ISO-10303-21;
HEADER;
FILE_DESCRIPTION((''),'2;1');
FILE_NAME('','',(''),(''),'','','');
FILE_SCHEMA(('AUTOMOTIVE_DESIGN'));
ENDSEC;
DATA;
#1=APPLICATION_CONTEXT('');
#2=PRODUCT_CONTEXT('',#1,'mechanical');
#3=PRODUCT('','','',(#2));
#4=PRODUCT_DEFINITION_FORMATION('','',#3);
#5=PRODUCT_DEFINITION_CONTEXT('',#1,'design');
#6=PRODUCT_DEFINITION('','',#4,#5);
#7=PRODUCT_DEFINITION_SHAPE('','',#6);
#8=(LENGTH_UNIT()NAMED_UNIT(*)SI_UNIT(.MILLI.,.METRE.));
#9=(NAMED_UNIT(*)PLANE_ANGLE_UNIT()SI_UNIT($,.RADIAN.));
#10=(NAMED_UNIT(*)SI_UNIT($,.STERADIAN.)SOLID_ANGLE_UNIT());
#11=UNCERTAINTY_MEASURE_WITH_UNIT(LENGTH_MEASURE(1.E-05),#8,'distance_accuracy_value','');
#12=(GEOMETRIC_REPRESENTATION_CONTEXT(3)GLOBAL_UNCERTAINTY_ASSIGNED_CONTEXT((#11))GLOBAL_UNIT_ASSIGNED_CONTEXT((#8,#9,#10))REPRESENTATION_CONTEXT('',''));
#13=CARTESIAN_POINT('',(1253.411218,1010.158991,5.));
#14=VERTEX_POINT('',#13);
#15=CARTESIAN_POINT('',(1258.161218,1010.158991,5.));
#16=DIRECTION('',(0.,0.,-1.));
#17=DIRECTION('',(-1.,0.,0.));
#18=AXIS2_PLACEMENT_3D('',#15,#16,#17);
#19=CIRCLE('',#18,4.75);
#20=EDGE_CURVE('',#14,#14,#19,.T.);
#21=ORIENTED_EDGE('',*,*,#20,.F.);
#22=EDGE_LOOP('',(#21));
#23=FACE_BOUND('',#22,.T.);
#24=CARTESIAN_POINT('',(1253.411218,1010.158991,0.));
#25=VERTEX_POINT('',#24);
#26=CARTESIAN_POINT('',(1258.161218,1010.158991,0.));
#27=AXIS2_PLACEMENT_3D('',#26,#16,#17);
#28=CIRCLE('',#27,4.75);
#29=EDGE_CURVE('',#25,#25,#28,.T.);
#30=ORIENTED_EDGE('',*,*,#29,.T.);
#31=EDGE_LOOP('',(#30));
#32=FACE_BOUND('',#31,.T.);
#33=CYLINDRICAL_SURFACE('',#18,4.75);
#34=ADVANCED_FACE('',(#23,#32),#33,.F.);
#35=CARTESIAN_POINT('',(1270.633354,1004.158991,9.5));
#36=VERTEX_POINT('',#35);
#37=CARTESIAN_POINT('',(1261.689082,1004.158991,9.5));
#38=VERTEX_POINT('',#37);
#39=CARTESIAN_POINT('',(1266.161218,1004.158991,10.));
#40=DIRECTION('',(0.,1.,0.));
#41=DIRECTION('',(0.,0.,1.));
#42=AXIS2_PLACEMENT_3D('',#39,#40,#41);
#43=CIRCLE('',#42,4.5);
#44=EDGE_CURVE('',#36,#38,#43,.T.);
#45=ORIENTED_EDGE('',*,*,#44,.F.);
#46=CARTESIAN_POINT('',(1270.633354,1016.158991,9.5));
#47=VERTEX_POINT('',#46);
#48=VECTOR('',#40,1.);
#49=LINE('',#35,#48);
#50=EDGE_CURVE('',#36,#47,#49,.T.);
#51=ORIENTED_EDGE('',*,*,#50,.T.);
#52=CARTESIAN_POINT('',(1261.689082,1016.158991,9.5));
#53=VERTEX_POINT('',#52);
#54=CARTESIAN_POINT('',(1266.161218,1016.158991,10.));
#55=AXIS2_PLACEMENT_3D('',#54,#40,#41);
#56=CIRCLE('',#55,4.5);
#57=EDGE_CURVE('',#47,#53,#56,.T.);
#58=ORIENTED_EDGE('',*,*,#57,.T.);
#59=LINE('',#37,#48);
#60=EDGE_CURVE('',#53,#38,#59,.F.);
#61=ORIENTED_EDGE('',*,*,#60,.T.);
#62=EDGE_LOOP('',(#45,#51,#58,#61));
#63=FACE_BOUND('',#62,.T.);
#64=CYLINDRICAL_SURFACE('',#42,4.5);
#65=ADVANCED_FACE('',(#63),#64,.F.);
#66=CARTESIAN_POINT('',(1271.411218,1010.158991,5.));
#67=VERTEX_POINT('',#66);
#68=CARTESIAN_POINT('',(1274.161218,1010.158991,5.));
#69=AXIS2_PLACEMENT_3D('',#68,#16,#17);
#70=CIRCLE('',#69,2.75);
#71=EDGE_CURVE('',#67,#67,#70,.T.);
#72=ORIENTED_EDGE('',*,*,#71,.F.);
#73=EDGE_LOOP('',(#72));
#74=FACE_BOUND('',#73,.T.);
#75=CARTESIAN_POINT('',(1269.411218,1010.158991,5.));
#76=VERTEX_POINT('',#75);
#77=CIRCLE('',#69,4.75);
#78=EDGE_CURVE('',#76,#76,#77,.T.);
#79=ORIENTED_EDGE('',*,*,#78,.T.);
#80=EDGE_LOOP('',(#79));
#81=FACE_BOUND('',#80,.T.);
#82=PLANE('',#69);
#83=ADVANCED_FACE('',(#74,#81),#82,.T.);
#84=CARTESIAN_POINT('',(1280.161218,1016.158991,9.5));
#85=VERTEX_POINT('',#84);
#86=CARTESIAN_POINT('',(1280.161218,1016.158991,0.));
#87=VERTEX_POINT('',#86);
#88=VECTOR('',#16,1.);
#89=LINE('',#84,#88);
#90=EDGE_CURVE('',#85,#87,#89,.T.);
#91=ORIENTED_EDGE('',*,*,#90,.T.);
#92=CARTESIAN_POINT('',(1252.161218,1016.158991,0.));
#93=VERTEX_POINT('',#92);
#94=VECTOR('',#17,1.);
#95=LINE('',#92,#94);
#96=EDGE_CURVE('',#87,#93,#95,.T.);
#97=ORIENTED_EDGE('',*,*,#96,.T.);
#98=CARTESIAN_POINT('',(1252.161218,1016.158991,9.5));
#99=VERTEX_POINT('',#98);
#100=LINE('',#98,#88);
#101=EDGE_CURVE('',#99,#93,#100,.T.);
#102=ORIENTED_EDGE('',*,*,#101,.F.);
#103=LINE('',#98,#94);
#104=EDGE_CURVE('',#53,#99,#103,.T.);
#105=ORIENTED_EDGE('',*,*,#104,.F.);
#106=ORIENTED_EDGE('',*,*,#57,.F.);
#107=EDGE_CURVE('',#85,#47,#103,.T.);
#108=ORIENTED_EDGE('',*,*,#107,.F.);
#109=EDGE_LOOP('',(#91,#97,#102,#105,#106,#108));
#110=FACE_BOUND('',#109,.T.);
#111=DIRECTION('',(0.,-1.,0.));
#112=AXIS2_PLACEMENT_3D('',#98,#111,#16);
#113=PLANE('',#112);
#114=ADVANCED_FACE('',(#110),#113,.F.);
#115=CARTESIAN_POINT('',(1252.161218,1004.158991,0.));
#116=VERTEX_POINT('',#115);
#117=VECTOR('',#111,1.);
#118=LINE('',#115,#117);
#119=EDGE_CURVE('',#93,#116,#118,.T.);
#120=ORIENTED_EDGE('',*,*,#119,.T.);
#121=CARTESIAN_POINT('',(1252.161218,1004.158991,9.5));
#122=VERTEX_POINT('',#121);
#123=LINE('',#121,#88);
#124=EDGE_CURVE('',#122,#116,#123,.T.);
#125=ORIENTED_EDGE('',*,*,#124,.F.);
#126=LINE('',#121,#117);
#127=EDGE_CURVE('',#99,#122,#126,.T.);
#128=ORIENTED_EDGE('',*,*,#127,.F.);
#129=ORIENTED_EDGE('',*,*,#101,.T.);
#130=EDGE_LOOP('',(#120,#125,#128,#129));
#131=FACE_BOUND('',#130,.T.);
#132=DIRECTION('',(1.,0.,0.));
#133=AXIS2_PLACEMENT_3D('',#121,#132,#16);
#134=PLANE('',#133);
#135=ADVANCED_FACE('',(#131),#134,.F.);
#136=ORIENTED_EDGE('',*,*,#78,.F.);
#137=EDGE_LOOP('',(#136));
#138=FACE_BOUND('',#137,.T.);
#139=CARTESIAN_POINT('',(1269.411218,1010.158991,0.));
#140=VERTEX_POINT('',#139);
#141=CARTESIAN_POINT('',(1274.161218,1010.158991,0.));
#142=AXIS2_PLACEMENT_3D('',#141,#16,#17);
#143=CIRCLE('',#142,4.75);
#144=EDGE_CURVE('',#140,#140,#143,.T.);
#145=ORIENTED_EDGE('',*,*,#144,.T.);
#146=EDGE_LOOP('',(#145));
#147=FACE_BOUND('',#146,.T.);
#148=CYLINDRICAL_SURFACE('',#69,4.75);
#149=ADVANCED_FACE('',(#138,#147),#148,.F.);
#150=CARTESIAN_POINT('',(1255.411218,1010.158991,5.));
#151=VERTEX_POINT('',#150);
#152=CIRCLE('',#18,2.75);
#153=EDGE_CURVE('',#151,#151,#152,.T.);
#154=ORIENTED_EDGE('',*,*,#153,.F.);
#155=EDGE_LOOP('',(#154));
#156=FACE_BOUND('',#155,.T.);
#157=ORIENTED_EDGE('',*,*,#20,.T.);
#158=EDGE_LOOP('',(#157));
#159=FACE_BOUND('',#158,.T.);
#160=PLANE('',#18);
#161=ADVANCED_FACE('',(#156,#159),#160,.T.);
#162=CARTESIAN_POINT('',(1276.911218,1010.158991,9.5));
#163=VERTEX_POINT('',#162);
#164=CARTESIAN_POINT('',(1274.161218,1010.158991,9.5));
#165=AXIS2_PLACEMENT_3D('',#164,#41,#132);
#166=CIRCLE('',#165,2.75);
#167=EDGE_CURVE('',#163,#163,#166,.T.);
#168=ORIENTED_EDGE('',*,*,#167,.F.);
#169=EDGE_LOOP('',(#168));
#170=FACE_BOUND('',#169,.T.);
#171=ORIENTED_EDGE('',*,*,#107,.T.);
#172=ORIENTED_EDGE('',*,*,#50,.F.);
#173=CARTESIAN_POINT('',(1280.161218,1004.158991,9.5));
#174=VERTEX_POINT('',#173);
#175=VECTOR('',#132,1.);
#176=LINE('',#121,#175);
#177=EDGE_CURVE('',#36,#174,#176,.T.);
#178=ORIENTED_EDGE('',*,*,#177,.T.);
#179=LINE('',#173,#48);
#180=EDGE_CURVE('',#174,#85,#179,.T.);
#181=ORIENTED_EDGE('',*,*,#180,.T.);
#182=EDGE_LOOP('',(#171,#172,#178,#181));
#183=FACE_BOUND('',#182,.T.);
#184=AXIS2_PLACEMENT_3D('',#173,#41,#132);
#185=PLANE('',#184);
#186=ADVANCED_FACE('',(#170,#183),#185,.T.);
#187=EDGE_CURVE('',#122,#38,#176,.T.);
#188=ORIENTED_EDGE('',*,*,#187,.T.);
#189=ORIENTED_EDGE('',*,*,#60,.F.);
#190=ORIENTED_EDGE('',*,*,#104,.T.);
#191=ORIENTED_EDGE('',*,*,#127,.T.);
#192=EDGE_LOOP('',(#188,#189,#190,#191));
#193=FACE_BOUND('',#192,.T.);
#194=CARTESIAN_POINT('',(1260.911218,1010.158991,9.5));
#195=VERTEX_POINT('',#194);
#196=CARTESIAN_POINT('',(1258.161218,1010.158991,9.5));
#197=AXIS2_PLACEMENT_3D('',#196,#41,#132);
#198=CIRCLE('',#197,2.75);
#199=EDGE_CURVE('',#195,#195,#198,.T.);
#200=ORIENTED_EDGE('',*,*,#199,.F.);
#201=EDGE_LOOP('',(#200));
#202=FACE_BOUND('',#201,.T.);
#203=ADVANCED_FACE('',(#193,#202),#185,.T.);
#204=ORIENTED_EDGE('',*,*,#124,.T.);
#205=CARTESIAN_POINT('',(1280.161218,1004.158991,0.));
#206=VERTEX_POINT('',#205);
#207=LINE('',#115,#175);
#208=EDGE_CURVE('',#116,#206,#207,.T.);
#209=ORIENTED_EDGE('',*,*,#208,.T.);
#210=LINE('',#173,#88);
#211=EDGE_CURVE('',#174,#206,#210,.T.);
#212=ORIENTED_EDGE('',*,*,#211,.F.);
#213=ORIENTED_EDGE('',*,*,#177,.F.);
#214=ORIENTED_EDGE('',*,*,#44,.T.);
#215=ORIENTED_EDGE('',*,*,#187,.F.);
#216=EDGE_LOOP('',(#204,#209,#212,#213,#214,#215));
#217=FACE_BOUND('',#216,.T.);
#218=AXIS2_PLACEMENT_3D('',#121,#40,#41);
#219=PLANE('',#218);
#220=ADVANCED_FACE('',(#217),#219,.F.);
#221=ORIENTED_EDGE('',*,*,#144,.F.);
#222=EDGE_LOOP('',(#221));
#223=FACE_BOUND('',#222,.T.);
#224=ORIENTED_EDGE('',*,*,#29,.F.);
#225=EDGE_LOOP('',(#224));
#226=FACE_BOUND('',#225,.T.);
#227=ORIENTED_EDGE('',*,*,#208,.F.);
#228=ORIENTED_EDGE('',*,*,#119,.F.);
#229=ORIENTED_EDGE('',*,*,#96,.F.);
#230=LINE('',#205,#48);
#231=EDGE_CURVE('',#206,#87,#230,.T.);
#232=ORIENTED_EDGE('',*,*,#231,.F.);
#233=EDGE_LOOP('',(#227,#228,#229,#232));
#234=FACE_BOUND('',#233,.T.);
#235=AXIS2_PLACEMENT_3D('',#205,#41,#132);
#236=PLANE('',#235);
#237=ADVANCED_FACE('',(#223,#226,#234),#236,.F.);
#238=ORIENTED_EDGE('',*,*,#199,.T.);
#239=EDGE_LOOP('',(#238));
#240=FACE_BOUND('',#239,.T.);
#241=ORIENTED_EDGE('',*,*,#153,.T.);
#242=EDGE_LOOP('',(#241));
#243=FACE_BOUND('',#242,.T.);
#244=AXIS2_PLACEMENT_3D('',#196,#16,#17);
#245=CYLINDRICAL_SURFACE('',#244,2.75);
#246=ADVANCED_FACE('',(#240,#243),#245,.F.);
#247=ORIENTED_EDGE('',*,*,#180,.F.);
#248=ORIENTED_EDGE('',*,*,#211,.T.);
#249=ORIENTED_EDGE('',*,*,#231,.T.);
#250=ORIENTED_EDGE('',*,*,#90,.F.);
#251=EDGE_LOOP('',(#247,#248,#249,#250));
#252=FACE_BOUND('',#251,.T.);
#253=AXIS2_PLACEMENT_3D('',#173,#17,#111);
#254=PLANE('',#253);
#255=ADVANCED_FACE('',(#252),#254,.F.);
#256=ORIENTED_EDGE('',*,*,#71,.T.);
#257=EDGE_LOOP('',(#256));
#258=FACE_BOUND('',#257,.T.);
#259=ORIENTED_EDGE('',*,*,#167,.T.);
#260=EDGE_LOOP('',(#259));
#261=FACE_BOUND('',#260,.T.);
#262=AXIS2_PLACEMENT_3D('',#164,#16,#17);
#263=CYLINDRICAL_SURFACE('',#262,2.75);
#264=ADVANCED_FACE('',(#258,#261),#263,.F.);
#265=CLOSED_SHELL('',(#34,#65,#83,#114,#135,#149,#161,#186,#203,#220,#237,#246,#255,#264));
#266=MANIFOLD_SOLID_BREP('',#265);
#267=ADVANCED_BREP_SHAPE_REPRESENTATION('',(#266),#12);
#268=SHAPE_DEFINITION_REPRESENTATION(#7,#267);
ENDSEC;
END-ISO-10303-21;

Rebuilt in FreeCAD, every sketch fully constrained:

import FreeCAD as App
import Part
import Sketcher

V = App.Vector
Q = App.Units.Quantity


def add_polygon(sketch, points):
    """Adds a closed chain of lines whose ends are joined by coincident constraints."""
    first, n = sketch.GeometryCount, len(points)
    for a, b in zip(points, points[1:] + points[:1]):
        sketch.addGeometry(Part.LineSegment(App.Vector(*a, 0), App.Vector(*b, 0)), False)
    for i in range(n):
        sketch.addConstraint(Sketcher.Constraint("Coincident", first + i, 2, first + (i + 1) % n, 1))

doc = App.newDocument("Part")
params = doc.addObject("Spreadsheet::Sheet", "Params")
for row, (alias, value) in enumerate([
    ("sketch1_diameter", "5.5 mm"),
    ("sketch1_width", "28 mm"),
    ("sketch1_height", "12 mm"),
    ("pad1_length", "9.5 mm"),
    ("sketch2_diameter", "9.5 mm"),
    ("pocket1_length", "5 mm"),
    ("sketch3_diameter", "9 mm"),
], start=1):
    params.set(f"A{row}", alias)
    params.set(f"B{row}", "=" + value)
    params.setAlias(f"B{row}", alias)

body = doc.addObject("PartDesign::Body", "Body")

sketch1 = body.newObject("Sketcher::SketchObject", "Sketch")
sketch1.AttachmentSupport = (doc.getObject("XY_Plane"), [""])
sketch1.MapMode = "FlatFace"
add_polygon(sketch1, [(1252.2, 1016.2), (1252.2, 1004.2), (1280.2, 1004.2), (1280.2, 1016.2)])
sketch1.addGeometry(Part.Circle(V(1258.2, 1010.2, 0), V(0, 0, 1), 2.8), False)
sketch1.addGeometry(Part.Circle(V(1274.2, 1010.2, 0), V(0, 0, 1), 2.8), False)
sketch1.addConstraint([
    Sketcher.Constraint("Vertical", 0),
    Sketcher.Constraint("Horizontal", 1),
    Sketcher.Constraint("Vertical", 2),
    Sketcher.Constraint("Horizontal", 3),
    Sketcher.Constraint("Equal", 4, 5),
    Sketcher.Constraint("Horizontal", 4, 3, 5, 3),
    Sketcher.Constraint("Diameter", 4, Q("5.5 mm")),
    Sketcher.Constraint("DistanceX", 1, 1, 1, 2, Q("28 mm")),
    Sketcher.Constraint("DistanceY", 0, 2, 0, 1, Q("12 mm")),
    Sketcher.Constraint("DistanceX", 4, 3, 5, 3, Q("16 mm")),
    Sketcher.Constraint("DistanceX", 0, 2, 4, 3, Q("6 mm")),
    Sketcher.Constraint("DistanceY", 0, 2, 4, 3, Q("6 mm")),
    Sketcher.Constraint("DistanceY", -1, 1, 4, 3, Q("1010.158991 mm")),
    Sketcher.Constraint("DistanceX", -1, 1, 4, 3, Q("1258.161218 mm")),
])
sketch1.setExpression("Constraints[10]", "Params.sketch1_diameter")
sketch1.setExpression("Constraints[11]", "Params.sketch1_width")
sketch1.setExpression("Constraints[12]", "Params.sketch1_height")
pad1 = body.newObject("PartDesign::Pad", "Pad")
pad1.Profile = sketch1
pad1.setExpression("Length", "Params.pad1_length")

sketch2 = body.newObject("Sketcher::SketchObject", "Sketch001")
sketch2.AttachmentSupport = (doc.getObject("XY_Plane"), [""])
sketch2.MapMode = "FlatFace"
sketch2.addGeometry([
    Part.Circle(V(1258.2, 1010.2, 0), V(0, 0, 1), 4.8),
    Part.Circle(V(1274.2, 1010.2, 0), V(0, 0, 1), 4.8),
], False)
sketch2.addConstraint([
    Sketcher.Constraint("Equal", 0, 1),
    Sketcher.Constraint("Horizontal", 0, 3, 1, 3),
    Sketcher.Constraint("Diameter", 0, Q("9.5 mm")),
    Sketcher.Constraint("DistanceX", 0, 3, 1, 3, Q("16 mm")),
    Sketcher.Constraint("DistanceY", -1, 1, 0, 3, Q("1010.158991 mm")),
    Sketcher.Constraint("DistanceX", -1, 1, 0, 3, Q("1258.161218 mm")),
])
sketch2.setExpression("Constraints[2]", "Params.sketch2_diameter")
pocket1 = body.newObject("PartDesign::Pocket", "Pocket")
pocket1.Profile = sketch2
pocket1.setExpression("Length", "Params.pocket1_length")
pocket1.Reversed = True

sketch3 = body.newObject("Sketcher::SketchObject", "Sketch002")
sketch3.AttachmentSupport = (doc.getObject("XZ_Plane"), [""])
sketch3.MapMode = "FlatFace"
sketch3.AttachmentOffset = App.Placement(V(0, 0, -1016.158991), App.Rotation())
sketch3.addGeometry(Part.Circle(V(1266.2, 10, 0), V(0, 0, 1), 4.5), False)
sketch3.addConstraint([
    Sketcher.Constraint("Diameter", 0, Q("9 mm")),
    Sketcher.Constraint("DistanceY", -1, 1, 0, 3, Q("10 mm")),
    Sketcher.Constraint("DistanceX", -1, 1, 0, 3, Q("1266.161218 mm")),
])
sketch3.setExpression("Constraints[0]", "Params.sketch3_diameter")
pocket2 = body.newObject("PartDesign::Pocket", "Pocket001")
pocket2.Profile = sketch3
pocket2.Type = "ThroughAll"
pocket2.Reversed = True

doc.recompute()
